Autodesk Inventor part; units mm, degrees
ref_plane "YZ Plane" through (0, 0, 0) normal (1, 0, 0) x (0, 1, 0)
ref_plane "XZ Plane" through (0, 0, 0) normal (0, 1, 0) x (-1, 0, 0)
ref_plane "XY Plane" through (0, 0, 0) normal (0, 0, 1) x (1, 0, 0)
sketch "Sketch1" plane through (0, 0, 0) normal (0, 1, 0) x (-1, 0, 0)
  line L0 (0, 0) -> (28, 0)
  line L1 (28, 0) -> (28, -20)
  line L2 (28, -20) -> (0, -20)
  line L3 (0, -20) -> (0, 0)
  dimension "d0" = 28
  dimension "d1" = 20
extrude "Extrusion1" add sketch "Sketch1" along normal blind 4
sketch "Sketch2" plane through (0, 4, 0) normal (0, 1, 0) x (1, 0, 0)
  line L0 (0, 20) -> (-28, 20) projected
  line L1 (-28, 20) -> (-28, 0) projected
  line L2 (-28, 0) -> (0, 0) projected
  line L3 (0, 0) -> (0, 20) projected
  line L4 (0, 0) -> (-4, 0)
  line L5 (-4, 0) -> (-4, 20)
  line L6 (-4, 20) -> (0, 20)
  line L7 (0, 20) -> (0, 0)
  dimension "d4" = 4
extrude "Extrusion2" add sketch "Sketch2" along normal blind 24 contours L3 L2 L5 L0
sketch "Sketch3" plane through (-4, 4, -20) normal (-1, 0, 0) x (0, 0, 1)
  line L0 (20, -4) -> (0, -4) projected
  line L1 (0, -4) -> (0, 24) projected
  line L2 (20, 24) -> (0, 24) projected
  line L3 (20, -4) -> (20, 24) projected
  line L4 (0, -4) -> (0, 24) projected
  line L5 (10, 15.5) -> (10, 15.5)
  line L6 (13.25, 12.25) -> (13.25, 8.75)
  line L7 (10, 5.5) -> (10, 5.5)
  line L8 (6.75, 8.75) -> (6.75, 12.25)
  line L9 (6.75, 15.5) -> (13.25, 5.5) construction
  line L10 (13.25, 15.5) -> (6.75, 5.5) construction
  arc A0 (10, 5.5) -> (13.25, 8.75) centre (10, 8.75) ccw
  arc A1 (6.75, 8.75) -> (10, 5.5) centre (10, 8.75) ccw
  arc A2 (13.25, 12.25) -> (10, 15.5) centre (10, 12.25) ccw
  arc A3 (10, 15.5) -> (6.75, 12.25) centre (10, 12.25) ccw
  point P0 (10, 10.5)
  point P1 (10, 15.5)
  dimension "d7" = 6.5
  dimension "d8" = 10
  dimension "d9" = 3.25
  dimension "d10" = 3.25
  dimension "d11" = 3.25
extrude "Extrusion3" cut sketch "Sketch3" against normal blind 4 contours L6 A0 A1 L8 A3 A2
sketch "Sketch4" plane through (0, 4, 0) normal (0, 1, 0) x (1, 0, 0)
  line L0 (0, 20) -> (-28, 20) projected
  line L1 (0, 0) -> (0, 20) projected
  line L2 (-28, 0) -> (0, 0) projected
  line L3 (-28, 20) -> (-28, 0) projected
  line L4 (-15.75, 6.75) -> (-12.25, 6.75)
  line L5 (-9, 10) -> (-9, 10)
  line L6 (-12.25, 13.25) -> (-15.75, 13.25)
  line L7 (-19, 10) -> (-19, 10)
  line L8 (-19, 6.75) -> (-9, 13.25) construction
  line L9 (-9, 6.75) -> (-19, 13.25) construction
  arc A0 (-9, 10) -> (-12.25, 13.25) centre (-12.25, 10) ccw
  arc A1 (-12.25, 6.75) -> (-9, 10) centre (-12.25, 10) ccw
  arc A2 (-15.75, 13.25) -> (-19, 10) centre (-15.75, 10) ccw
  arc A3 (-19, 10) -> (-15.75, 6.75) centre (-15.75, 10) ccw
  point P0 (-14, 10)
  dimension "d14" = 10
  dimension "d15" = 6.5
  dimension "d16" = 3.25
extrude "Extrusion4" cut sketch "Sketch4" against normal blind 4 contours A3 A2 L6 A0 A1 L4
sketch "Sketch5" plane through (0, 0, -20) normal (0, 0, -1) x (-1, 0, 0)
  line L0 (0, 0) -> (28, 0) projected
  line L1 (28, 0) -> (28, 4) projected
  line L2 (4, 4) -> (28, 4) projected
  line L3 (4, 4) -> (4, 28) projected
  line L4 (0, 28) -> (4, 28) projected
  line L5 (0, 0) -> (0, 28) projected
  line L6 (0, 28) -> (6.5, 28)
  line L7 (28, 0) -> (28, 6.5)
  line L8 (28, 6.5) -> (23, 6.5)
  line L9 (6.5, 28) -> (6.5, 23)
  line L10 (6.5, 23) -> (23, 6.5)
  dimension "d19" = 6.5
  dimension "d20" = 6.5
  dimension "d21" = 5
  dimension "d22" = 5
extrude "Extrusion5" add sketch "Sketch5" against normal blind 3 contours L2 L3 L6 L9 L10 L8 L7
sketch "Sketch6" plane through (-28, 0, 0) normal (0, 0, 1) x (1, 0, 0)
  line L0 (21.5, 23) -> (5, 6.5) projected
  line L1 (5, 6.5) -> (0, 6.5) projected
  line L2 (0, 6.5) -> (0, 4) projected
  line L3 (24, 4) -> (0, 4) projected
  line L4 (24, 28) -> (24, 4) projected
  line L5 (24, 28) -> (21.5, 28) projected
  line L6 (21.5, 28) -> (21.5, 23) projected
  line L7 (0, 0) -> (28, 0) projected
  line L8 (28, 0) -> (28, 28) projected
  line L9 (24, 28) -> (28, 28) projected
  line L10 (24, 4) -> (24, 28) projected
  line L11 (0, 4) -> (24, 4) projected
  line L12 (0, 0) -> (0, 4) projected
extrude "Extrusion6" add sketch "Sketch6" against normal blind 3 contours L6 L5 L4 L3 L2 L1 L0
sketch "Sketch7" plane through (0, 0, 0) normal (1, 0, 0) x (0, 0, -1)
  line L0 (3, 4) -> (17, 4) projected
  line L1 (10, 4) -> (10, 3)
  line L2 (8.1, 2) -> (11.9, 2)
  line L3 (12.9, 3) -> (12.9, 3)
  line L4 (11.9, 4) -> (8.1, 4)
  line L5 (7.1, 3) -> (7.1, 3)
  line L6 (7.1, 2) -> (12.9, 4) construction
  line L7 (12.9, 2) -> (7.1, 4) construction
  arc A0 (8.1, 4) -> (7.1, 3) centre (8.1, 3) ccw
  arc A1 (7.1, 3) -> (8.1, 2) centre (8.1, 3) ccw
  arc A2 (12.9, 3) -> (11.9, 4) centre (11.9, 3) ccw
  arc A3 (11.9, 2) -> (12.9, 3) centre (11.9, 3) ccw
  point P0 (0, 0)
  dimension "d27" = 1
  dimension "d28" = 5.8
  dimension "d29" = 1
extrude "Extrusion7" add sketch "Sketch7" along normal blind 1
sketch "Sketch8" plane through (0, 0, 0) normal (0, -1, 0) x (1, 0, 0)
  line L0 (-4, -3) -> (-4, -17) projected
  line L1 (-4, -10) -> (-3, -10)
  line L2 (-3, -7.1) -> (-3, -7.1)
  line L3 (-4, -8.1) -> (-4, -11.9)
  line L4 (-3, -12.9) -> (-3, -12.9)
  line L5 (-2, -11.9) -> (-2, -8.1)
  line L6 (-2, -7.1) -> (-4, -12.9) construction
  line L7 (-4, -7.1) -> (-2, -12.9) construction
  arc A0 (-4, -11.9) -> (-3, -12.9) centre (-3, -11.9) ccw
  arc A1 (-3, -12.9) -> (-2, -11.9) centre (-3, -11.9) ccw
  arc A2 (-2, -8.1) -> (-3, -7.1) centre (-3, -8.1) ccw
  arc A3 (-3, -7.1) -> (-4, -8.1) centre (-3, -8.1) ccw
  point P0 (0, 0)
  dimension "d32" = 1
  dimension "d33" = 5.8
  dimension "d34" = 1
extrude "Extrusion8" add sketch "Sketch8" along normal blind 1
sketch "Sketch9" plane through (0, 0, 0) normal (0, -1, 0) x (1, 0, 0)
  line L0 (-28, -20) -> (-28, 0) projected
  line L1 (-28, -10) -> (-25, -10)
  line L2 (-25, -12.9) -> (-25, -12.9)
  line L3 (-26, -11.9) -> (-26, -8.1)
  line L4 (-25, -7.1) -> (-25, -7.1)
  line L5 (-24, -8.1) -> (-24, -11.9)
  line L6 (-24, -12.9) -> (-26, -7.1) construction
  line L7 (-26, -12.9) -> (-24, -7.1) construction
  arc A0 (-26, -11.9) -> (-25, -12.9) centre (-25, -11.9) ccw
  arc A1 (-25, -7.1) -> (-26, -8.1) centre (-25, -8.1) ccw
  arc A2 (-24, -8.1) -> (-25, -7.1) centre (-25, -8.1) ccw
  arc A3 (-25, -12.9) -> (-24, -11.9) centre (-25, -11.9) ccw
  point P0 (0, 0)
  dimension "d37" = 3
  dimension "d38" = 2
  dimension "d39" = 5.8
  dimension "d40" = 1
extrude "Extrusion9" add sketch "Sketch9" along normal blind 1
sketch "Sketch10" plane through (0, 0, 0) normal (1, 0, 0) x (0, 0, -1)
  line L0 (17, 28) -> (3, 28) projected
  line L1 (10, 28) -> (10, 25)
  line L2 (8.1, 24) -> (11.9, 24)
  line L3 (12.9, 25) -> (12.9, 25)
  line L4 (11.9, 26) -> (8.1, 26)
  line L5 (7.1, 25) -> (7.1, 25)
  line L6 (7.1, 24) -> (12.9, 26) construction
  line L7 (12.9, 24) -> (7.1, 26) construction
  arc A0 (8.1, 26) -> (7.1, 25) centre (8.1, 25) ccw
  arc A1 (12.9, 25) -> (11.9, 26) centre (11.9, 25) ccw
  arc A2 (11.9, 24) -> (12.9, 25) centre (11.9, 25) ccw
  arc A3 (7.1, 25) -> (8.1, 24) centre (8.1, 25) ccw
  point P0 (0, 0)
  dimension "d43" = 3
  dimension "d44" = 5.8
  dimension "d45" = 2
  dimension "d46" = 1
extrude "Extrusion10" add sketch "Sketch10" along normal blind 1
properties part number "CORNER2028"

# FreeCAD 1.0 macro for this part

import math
import FreeCAD as App
import Part
import Sketcher
from FreeCAD import Vector
Q = App.Units.Quantity


def add_polygon(sketch, points):
    """Adds a closed chain of lines whose ends are joined by coincident constraints."""
    first, n = sketch.GeometryCount, len(points)
    for a, b in zip(points, points[1:] + points[:1]):
        sketch.addGeometry(Part.LineSegment(App.Vector(*a, 0), App.Vector(*b, 0)), False)
    for i in range(n):
        sketch.addConstraint(Sketcher.Constraint("Coincident", first + i, 2, first + (i + 1) % n, 1))

doc = App.newDocument("Part")
body = doc.addObject("PartDesign::Body", "Body")

# Sketch on XZ plane
sketch1 = body.newObject("Sketcher::SketchObject", "Sketch")
sketch1.AttachmentSupport = (doc.getObject("XZ_Plane"), [""])
sketch1.MapMode = "FlatFace"
add_polygon(sketch1, [(-28, 0), (0, 0), (0, -20), (-28, -20)])  # lines 0-3
sketch1.addConstraint(Sketcher.Constraint("Horizontal", 0))
sketch1.addConstraint(Sketcher.Constraint("Vertical", 1))
sketch1.addConstraint(Sketcher.Constraint("Horizontal", 2))
sketch1.addConstraint(Sketcher.Constraint("Vertical", 3))
sketch1.addConstraint(Sketcher.Constraint("Coincident", 0, 2, -1, 1))
sketch1.addConstraint(Sketcher.Constraint("DistanceX", 0, 1, 0, 2, Q("28 mm")))
sketch1.addConstraint(Sketcher.Constraint("DistanceY", 1, 2, 1, 1, Q("20 mm")))
pad1 = body.newObject("PartDesign::Pad", "Pad")
pad1.Profile = sketch1
pad1.Length = 4
pad1.Reversed = True

# Sketch on XZ plane
sketch2 = body.newObject("Sketcher::SketchObject", "Sketch001")
sketch2.AttachmentSupport = (doc.getObject("XZ_Plane"), [""])
sketch2.MapMode = "FlatFace"
sketch2.AttachmentOffset = App.Placement(Vector(0, 0, -4), App.Rotation())
add_polygon(sketch2, [(0, 0), (0, -20), (-4, -20), (-4, 0)])  # lines 0-3
sketch2.addConstraint(Sketcher.Constraint("Vertical", 0))
sketch2.addConstraint(Sketcher.Constraint("Horizontal", 1))
sketch2.addConstraint(Sketcher.Constraint("Vertical", 2))
sketch2.addConstraint(Sketcher.Constraint("Horizontal", 3))
sketch2.addConstraint(Sketcher.Constraint("Coincident", 3, 2, -1, 1))
sketch2.addConstraint(Sketcher.Constraint("DistanceX", 1, 2, 1, 1, Q("4 mm")))
sketch2.addConstraint(Sketcher.Constraint("DistanceY", 0, 2, 0, 1, Q("20 mm")))
pad2 = body.newObject("PartDesign::Pad", "Pad001")
pad2.Profile = sketch2
pad2.Length = 24
pad2.Reversed = True

# Sketch on YZ plane
sketch3 = body.newObject("Sketcher::SketchObject", "Sketch002")
sketch3.AttachmentSupport = (doc.getObject("YZ_Plane"), [""])
sketch3.MapMode = "FlatFace"
sketch3.AttachmentOffset = App.Placement(Vector(0, 0, -4), App.Rotation())
sketch3.addGeometry(Part.LineSegment(Vector(12.8, -6.8, 0), Vector(16.2, -6.8, 0)), False)
sketch3.addGeometry(Part.ArcOfCircle(Part.Circle(Vector(16.2, -10, 0), Vector(0, 0, 1), 3.2), math.radians(-90), math.radians(90)), False)
sketch3.addGeometry(Part.LineSegment(Vector(16.2, -13.2, 0), Vector(12.8, -13.2, 0)), False)
sketch3.addGeometry(Part.ArcOfCircle(Part.Circle(Vector(12.8, -10, 0), Vector(0, 0, 1), 3.2), math.radians(90), math.radians(270)), False)
sketch3.addConstraint(Sketcher.Constraint("Tangent", 0, 2, 1, 2))
sketch3.addConstraint(Sketcher.Constraint("Tangent", 1, 1, 2, 1))
sketch3.addConstraint(Sketcher.Constraint("Tangent", 2, 2, 3, 2))
sketch3.addConstraint(Sketcher.Constraint("Tangent", 3, 1, 0, 1))
sketch3.addConstraint(Sketcher.Constraint("Horizontal", 0))
sketch3.addConstraint(Sketcher.Constraint("Horizontal", 2))
sketch3.addConstraint(Sketcher.Constraint("Radius", 1, Q("3.25 mm")))
sketch3.addConstraint(Sketcher.Constraint("DistanceY", 1, 3, -1, 1, Q("10 mm")))
sketch3.addConstraint(Sketcher.Constraint("DistanceX", 0, 1, 0, 2, Q("3.5 mm")))
sketch3.addConstraint(Sketcher.Constraint("DistanceX", -1, 1, 1, 3, Q("16.25 mm")))
pocket1 = body.newObject("PartDesign::Pocket", "Pocket")
pocket1.Profile = sketch3
pocket1.Length = 4
pocket1.Reversed = True

# Sketch on XZ plane
sketch4 = body.newObject("Sketcher::SketchObject", "Sketch003")
sketch4.AttachmentSupport = (doc.getObject("XZ_Plane"), [""])
sketch4.MapMode = "FlatFace"
sketch4.AttachmentOffset = App.Placement(Vector(0, 0, -4), App.Rotation())
sketch4.addGeometry(Part.ArcOfCircle(Part.Circle(Vector(-15.8, -10, 0), Vector(0, 0, 1), 3.2), math.radians(90), math.radians(270)), False)
sketch4.addGeometry(Part.LineSegment(Vector(-15.8, -6.8, 0), Vector(-12.2, -6.8, 0)), False)
sketch4.addGeometry(Part.ArcOfCircle(Part.Circle(Vector(-12.2, -10, 0), Vector(0, 0, 1), 3.2), math.radians(-90), math.radians(90)), False)
sketch4.addGeometry(Part.LineSegment(Vector(-12.2, -13.2, 0), Vector(-15.8, -13.2, 0)), False)
sketch4.addConstraint(Sketcher.Constraint("Tangent", 0, 1, 1, 1))
sketch4.addConstraint(Sketcher.Constraint("Tangent", 1, 2, 2, 2))
sketch4.addConstraint(Sketcher.Constraint("Tangent", 2, 1, 3, 1))
sketch4.addConstraint(Sketcher.Constraint("Tangent", 3, 2, 0, 2))
sketch4.addConstraint(Sketcher.Constraint("Horizontal", 1))
sketch4.addConstraint(Sketcher.Constraint("Horizontal", 3))
sketch4.addConstraint(Sketcher.Constraint("Radius", 0, Q("3.25 mm")))
sketch4.addConstraint(Sketcher.Constraint("DistanceY", 0, 3, -1, 1, Q("10 mm")))
sketch4.addConstraint(Sketcher.Constraint("DistanceX", 1, 1, 1, 2, Q("3.5 mm")))
sketch4.addConstraint(Sketcher.Constraint("DistanceX", 0, 3, -1, 1, Q("15.75 mm")))
pocket2 = body.newObject("PartDesign::Pocket", "Pocket001")
pocket2.Profile = sketch4
pocket2.Length = 4
pocket2.Reversed = True

# Sketch on XY plane
sketch5 = body.newObject("Sketcher::SketchObject", "Sketch004")
sketch5.AttachmentSupport = (doc.getObject("XY_Plane"), [""])
sketch5.MapMode = "FlatFace"
sketch5.AttachmentOffset = App.Placement(Vector(0, 0, -20), App.Rotation())
add_polygon(sketch5, [(-4, 4), (-28, 4), (-28, 6.5), (-23, 6.5), (-6.5, 23), (-6.5, 28), (-4, 28)])  # lines 0-6
sketch5.addConstraint(Sketcher.Constraint("Horizontal", 0))
sketch5.addConstraint(Sketcher.Constraint("Vertical", 1))
sketch5.addConstraint(Sketcher.Constraint("Horizontal", 2))
sketch5.addConstraint(Sketcher.Constraint("Vertical", 4))
sketch5.addConstraint(Sketcher.Constraint("Horizontal", 5))
sketch5.addConstraint(Sketcher.Constraint("Vertical", 6))
sketch5.addConstraint(Sketcher.Constraint("Equal", 5, 1))
sketch5.addConstraint(Sketcher.Constraint("Equal", 2, 4))
sketch5.addConstraint(Sketcher.Constraint("Equal", 0, 6))
sketch5.addConstraint(Sketcher.Constraint("DistanceX", 2, 1, 2, 2, Q("5 mm")))
sketch5.addConstraint(Sketcher.Constraint("DistanceY", -1, 1, 1, 2, Q("6.5 mm")))
sketch5.addConstraint(Sketcher.Constraint("DistanceX", 3, 2, -1, 1, Q("6.5 mm")))
sketch5.addConstraint(Sketcher.Constraint("DistanceX", 0, 2, 0, 1, Q("24 mm")))
sketch5.addConstraint(Sketcher.Constraint("DistanceX", 5, 1, 5, 2, Q("2.5 mm")))
pad3 = body.newObject("PartDesign::Pad", "Pad002")
pad3.Profile = sketch5
pad3.Length = 3

# Sketch on XY plane
sketch6 = body.newObject("Sketcher::SketchObject", "Sketch005")
sketch6.AttachmentSupport = (doc.getObject("XY_Plane"), [""])
sketch6.MapMode = "FlatFace"
add_polygon(sketch6, [(-6.5, 28), (-6.5, 23), (-23, 6.5), (-28, 6.5), (-28, 4), (-4, 4), (-4, 28)])  # lines 0-6
sketch6.addConstraint(Sketcher.Constraint("Vertical", 0))
sketch6.addConstraint(Sketcher.Constraint("Horizontal", 2))
sketch6.addConstraint(Sketcher.Constraint("Vertical", 3))
sketch6.addConstraint(Sketcher.Constraint("Horizontal", 4))
sketch6.addConstraint(Sketcher.Constraint("Vertical", 5))
sketch6.addConstraint(Sketcher.Constraint("Horizontal", 6))
sketch6.addConstraint(Sketcher.Constraint("Equal", 2, 0))
sketch6.addConstraint(Sketcher.Constraint("Equal", 6, 3))
sketch6.addConstraint(Sketcher.Constraint("Equal", 4, 5))
sketch6.addConstraint(Sketcher.Constraint("DistanceX", 2, 2, 2, 1, Q("5 mm")))
sketch6.addConstraint(Sketcher.Constraint("DistanceX", 4, 1, 4, 2, Q("24 mm")))
sketch6.addConstraint(Sketcher.Constraint("DistanceX", 6, 2, 6, 1, Q("2.5 mm")))
sketch6.addConstraint(Sketcher.Constraint("DistanceY", -1, 1, 0, 2, Q("23 mm")))
sketch6.addConstraint(Sketcher.Constraint("DistanceX", 1, 2, -1, 1, Q("23 mm")))
pad4 = body.newObject("PartDesign::Pad", "Pad003")
pad4.Profile = sketch6
pad4.Length = 3
pad4.Reversed = True

# Sketch on YZ plane
sketch7 = body.newObject("Sketcher::SketchObject", "Sketch006")
sketch7.AttachmentSupport = (doc.getObject("YZ_Plane"), [""])
sketch7.MapMode = "FlatFace"
sketch7.addGeometry(Part.LineSegment(Vector(4, -11.9, 0), Vector(4, -8.1, 0)), False)
sketch7.addGeometry(Part.ArcOfCircle(Part.Circle(Vector(3, -8.1, 0), Vector(0, 0, 1), 1), math.radians(0), math.radians(180)), False)
sketch7.addGeometry(Part.LineSegment(Vector(2, -8.1, 0), Vector(2, -11.9, 0)), False)
sketch7.addGeometry(Part.ArcOfCircle(Part.Circle(Vector(3, -11.9, 0), Vector(0, 0, 1), 1), math.radians(180), math.radians(360)), False)
sketch7.addConstraint(Sketcher.Constraint("Tangent", 0, 2, 1, 1))
sketch7.addConstraint(Sketcher.Constraint("Tangent", 1, 2, 2, 1))
sketch7.addConstraint(Sketcher.Constraint("Tangent", 2, 2, 3, 1))
sketch7.addConstraint(Sketcher.Constraint("Tangent", 3, 2, 0, 1))
sketch7.addConstraint(Sketcher.Constraint("Vertical", 0))
sketch7.addConstraint(Sketcher.Constraint("Vertical", 2))
sketch7.addConstraint(Sketcher.Constraint("Radius", 1, Q("1 mm")))
sketch7.addConstraint(Sketcher.Constraint("DistanceY", 0, 1, 0, 2, Q("3.8 mm")))
sketch7.addConstraint(Sketcher.Constraint("DistanceX", -1, 1, 1, 3, Q("3 mm")))
sketch7.addConstraint(Sketcher.Constraint("DistanceY", 1, 3, -1, 1, Q("8.1 mm")))
pad5 = body.newObject("PartDesign::Pad", "Pad004")
pad5.Profile = sketch7
pad5.Length = 1

# Sketch on XZ plane
sketch8 = body.newObject("Sketcher::SketchObject", "Sketch007")
sketch8.AttachmentSupport = (doc.getObject("XZ_Plane"), [""])
sketch8.MapMode = "FlatFace"
sketch8.addGeometry(Part.ArcOfCircle(Part.Circle(Vector(-3, -8.1, 0), Vector(0, 0, 1), 1), math.radians(0), math.radians(180)), False)
sketch8.addGeometry(Part.LineSegment(Vector(-4, -8.1, 0), Vector(-4, -11.9, 0)), False)
sketch8.addGeometry(Part.ArcOfCircle(Part.Circle(Vector(-3, -11.9, 0), Vector(0, 0, 1), 1), math.radians(180), math.radians(360)), False)
sketch8.addGeometry(Part.LineSegment(Vector(-2, -11.9, 0), Vector(-2, -8.1, 0)), False)
sketch8.addConstraint(Sketcher.Constraint("Tangent", 0, 2, 1, 1))
sketch8.addConstraint(Sketcher.Constraint("Tangent", 1, 2, 2, 1))
sketch8.addConstraint(Sketcher.Constraint("Tangent", 2, 2, 3, 1))
sketch8.addConstraint(Sketcher.Constraint("Tangent", 3, 2, 0, 1))
sketch8.addConstraint(Sketcher.Constraint("Vertical", 1))
sketch8.addConstraint(Sketcher.Constraint("Vertical", 3))
sketch8.addConstraint(Sketcher.Constraint("Radius", 0, Q("1 mm")))
sketch8.addConstraint(Sketcher.Constraint("DistanceY", 1, 2, 1, 1, Q("3.8 mm")))
sketch8.addConstraint(Sketcher.Constraint("DistanceX", 0, 3, -1, 1, Q("3 mm")))
sketch8.addConstraint(Sketcher.Constraint("DistanceY", 0, 3, -1, 1, Q("8.1 mm")))
pad6 = body.newObject("PartDesign::Pad", "Pad005")
pad6.Profile = sketch8
pad6.Length = 1

# Sketch on XZ plane
sketch9 = body.newObject("Sketcher::SketchObject", "Sketch008")
sketch9.AttachmentSupport = (doc.getObject("XZ_Plane"), [""])
sketch9.MapMode = "FlatFace"
sketch9.addGeometry(Part.LineSegment(Vector(-26, -8.1, 0), Vector(-26, -11.9, 0)), False)
sketch9.addGeometry(Part.ArcOfCircle(Part.Circle(Vector(-25, -11.9, 0), Vector(0, 0, 1), 1), math.radians(180), math.radians(360)), False)
sketch9.addGeometry(Part.LineSegment(Vector(-24, -11.9, 0), Vector(-24, -8.1, 0)), False)
sketch9.addGeometry(Part.ArcOfCircle(Part.Circle(Vector(-25, -8.1, 0), Vector(0, 0, 1), 1), math.radians(0), math.radians(180)), False)
sketch9.addConstraint(Sketcher.Constraint("Tangent", 0, 2, 1, 1))
sketch9.addConstraint(Sketcher.Constraint("Tangent", 1, 2, 2, 1))
sketch9.addConstraint(Sketcher.Constraint("Tangent", 2, 2, 3, 1))
sketch9.addConstraint(Sketcher.Constraint("Tangent", 3, 2, 0, 1))
sketch9.addConstraint(Sketcher.Constraint("Vertical", 0))
sketch9.addConstraint(Sketcher.Constraint("Vertical", 2))
sketch9.addConstraint(Sketcher.Constraint("Radius", 1, Q("1 mm")))
sketch9.addConstraint(Sketcher.Constraint("DistanceY", 0, 2, 0, 1, Q("3.8 mm")))
sketch9.addConstraint(Sketcher.Constraint("DistanceX", 1, 3, -1, 1, Q("25 mm")))
sketch9.addConstraint(Sketcher.Constraint("DistanceY", 1, 3, -1, 1, Q("11.9 mm")))
pad7 = body.newObject("PartDesign::Pad", "Pad006")
pad7.Profile = sketch9
pad7.Length = 1

# Sketch on YZ plane
sketch10 = body.newObject("Sketcher::SketchObject", "Sketch009")
sketch10.AttachmentSupport = (doc.getObject("YZ_Plane"), [""])
sketch10.MapMode = "FlatFace"
sketch10.addGeometry(Part.ArcOfCircle(Part.Circle(Vector(25, -8.1, 0), Vector(0, 0, 1), 1), math.radians(0), math.radians(180)), False)
sketch10.addGeometry(Part.LineSegment(Vector(24, -8.1, 0), Vector(24, -11.9, 0)), False)
sketch10.addGeometry(Part.ArcOfCircle(Part.Circle(Vector(25, -11.9, 0), Vector(0, 0, 1), 1), math.radians(180), math.radians(360)), False)
sketch10.addGeometry(Part.LineSegment(Vector(26, -11.9, 0), Vector(26, -8.1, 0)), False)
sketch10.addConstraint(Sketcher.Constraint("Tangent", 0, 2, 1, 1))
sketch10.addConstraint(Sketcher.Constraint("Tangent", 1, 2, 2, 1))
sketch10.addConstraint(Sketcher.Constraint("Tangent", 2, 2, 3, 1))
sketch10.addConstraint(Sketcher.Constraint("Tangent", 3, 2, 0, 1))
sketch10.addConstraint(Sketcher.Constraint("Vertical", 1))
sketch10.addConstraint(Sketcher.Constraint("Vertical", 3))
sketch10.addConstraint(Sketcher.Constraint("Radius", 0, Q("1 mm")))
sketch10.addConstraint(Sketcher.Constraint("DistanceY", 1, 2, 1, 1, Q("3.8 mm")))
sketch10.addConstraint(Sketcher.Constraint("DistanceX", -1, 1, 0, 3, Q("25 mm")))
sketch10.addConstraint(Sketcher.Constraint("DistanceY", 0, 3, -1, 1, Q("8.1 mm")))
pad8 = body.newObject("PartDesign::Pad", "Pad007")
pad8.Profile = sketch10
pad8.Length = 1

doc.recompute()
